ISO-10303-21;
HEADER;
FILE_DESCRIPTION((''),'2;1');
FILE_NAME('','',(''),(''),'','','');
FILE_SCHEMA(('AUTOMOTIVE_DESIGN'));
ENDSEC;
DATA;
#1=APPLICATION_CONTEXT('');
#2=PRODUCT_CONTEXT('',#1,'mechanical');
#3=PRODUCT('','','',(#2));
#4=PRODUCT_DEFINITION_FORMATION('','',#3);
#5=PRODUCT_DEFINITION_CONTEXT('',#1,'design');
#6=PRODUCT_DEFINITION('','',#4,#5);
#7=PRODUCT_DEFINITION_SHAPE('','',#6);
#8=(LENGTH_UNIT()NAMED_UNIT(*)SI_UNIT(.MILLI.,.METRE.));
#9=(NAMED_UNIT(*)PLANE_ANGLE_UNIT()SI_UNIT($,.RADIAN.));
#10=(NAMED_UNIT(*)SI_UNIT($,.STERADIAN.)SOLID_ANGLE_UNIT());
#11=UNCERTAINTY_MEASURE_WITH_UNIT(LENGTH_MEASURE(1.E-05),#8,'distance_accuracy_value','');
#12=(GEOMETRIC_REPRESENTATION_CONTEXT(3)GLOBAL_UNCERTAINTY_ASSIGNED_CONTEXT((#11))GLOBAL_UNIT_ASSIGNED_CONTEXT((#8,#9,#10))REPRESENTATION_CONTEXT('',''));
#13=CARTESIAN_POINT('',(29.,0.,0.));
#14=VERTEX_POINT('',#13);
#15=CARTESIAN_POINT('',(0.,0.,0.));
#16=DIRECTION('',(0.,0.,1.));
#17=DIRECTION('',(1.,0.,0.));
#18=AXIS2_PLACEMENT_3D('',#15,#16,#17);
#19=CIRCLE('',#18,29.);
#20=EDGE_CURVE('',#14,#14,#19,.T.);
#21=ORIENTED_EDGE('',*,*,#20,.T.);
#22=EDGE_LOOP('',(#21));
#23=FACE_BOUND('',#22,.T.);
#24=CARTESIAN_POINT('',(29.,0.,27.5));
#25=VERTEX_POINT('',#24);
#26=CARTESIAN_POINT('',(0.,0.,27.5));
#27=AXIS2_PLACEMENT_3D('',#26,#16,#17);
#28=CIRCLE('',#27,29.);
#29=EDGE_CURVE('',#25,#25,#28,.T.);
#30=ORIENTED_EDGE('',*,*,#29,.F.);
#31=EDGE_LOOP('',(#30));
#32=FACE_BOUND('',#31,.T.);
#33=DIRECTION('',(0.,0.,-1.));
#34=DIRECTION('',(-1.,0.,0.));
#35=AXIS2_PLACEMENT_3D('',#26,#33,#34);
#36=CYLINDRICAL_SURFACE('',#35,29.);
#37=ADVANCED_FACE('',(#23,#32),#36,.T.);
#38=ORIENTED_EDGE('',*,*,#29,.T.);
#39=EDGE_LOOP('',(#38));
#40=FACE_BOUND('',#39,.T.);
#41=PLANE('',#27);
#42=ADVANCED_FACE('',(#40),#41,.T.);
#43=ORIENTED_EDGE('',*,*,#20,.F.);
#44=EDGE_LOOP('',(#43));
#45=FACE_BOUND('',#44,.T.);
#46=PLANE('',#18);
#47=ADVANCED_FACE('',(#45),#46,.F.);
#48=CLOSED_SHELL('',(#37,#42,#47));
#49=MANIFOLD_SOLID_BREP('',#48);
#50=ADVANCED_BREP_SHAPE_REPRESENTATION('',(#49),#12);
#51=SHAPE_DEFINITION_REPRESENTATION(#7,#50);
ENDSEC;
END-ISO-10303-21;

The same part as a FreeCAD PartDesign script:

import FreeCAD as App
import Part
import Sketcher
from FreeCAD import Vector
Q = App.Units.Quantity

doc = App.newDocument("Part")
body = doc.addObject("PartDesign::Body", "Body")

sketch1 = body.newObject("Sketcher::SketchObject", "Sketch")
sketch1.AttachmentSupport = (doc.getObject("XY_Plane"), [""])
sketch1.MapMode = "FlatFace"
sketch1.addGeometry(Part.Circle(Vector(0, 0, 0), Vector(0, 0, 1), 29), False)
sketch1.addConstraint([
    Sketcher.Constraint("Coincident", 0, 3, -1, 1),
    Sketcher.Constraint("Diameter", 0, Q("58 mm")),
])
pad1 = body.newObject("PartDesign::Pad", "Pad")
pad1.Profile = sketch1
pad1.Length = 27.5

doc.recompute()
